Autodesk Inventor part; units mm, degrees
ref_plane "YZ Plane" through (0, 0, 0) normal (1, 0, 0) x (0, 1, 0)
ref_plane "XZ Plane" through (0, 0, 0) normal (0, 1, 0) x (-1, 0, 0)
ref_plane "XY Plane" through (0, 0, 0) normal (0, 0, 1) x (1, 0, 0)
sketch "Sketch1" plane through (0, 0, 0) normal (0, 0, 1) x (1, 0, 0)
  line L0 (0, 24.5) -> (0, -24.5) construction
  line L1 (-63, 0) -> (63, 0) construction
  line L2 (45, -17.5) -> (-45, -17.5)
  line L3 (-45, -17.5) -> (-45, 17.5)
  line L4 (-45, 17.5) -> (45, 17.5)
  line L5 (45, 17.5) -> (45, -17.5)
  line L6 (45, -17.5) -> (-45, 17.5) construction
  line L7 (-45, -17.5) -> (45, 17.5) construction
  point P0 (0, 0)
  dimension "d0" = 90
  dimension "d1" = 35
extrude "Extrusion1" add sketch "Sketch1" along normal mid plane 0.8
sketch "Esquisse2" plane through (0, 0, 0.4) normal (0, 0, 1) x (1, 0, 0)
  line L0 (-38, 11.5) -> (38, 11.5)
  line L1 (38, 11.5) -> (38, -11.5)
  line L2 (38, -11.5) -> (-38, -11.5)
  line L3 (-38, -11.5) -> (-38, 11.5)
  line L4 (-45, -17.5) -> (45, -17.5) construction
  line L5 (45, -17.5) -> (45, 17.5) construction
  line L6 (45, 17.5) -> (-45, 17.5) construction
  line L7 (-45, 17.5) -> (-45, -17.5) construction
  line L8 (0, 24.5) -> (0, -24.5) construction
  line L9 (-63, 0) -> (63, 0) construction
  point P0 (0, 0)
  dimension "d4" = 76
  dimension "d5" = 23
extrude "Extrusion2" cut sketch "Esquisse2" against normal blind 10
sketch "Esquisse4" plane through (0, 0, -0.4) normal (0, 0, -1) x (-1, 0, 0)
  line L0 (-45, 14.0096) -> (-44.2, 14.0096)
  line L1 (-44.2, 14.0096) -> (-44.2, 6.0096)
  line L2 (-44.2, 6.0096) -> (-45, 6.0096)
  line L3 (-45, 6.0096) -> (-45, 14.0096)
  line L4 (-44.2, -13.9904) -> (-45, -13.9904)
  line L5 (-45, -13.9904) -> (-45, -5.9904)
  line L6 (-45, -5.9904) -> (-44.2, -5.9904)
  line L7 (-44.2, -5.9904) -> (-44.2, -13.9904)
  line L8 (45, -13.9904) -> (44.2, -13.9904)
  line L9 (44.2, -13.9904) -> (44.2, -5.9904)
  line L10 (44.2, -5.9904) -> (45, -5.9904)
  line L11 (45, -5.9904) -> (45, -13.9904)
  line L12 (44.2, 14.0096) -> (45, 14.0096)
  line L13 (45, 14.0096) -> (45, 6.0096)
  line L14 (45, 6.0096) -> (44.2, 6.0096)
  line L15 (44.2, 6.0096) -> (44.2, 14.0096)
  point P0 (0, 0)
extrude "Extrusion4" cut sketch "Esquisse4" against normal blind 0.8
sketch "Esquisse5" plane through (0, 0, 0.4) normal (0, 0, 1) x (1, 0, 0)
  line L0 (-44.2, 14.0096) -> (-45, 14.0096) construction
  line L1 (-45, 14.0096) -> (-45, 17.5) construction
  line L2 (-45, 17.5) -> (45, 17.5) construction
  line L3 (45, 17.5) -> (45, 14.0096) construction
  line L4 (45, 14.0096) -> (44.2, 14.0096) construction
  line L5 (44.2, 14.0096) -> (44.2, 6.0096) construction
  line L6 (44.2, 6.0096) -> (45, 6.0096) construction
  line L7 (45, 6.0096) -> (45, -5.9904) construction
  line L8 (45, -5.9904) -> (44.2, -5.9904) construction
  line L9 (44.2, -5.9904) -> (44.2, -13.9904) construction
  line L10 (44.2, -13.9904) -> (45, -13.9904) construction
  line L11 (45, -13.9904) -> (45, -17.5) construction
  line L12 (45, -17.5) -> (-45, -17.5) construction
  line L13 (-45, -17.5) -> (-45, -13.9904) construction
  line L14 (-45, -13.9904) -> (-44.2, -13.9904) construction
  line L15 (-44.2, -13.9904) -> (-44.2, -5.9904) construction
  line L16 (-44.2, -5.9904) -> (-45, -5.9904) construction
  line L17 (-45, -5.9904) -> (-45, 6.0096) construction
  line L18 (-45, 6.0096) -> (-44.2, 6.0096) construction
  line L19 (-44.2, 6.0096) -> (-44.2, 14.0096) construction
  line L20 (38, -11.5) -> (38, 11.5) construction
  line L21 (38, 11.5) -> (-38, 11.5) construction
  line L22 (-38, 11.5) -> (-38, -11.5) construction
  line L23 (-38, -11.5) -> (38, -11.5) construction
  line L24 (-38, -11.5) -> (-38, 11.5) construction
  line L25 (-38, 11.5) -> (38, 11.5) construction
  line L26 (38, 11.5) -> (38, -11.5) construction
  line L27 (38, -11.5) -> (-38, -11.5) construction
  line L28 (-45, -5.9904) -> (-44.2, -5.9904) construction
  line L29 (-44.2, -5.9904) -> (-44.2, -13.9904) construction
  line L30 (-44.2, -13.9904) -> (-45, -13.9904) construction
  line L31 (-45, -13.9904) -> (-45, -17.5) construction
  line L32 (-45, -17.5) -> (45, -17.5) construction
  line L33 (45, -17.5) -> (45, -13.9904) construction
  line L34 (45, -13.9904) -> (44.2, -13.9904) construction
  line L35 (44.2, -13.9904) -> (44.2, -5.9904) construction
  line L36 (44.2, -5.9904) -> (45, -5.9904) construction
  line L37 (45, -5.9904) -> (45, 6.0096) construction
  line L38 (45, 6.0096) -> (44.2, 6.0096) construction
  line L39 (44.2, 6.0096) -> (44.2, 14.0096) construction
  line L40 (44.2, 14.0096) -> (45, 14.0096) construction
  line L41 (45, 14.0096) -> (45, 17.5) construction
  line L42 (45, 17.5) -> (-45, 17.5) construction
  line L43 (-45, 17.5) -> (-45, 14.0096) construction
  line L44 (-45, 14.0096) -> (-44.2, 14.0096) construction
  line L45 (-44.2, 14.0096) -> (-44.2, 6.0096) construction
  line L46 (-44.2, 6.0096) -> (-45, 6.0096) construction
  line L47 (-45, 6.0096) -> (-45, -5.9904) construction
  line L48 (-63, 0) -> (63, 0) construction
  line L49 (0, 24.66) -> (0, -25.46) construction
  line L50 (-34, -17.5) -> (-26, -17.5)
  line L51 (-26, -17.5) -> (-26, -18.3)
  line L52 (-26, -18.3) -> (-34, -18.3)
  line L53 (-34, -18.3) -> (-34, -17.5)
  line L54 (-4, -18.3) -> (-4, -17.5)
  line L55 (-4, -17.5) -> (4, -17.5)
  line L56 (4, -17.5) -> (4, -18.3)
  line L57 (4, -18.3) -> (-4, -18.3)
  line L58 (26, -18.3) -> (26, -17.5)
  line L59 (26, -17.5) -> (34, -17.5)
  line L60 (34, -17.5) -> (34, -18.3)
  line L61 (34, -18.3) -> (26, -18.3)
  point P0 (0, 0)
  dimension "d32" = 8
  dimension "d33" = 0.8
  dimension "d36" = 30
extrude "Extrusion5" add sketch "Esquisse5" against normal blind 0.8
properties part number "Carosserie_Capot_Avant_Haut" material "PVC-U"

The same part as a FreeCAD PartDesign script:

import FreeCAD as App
import Part
import Sketcher
Q = App.Units.Quantity


def add_polygon(sketch, points):
    """Adds a closed chain of lines whose ends are joined by coincident constraints."""
    first, n = sketch.GeometryCount, len(points)
    for a, b in zip(points, points[1:] + points[:1]):
        sketch.addGeometry(Part.LineSegment(App.Vector(*a, 0), App.Vector(*b, 0)), False)
    for i in range(n):
        sketch.addConstraint(Sketcher.Constraint("Coincident", first + i, 2, first + (i + 1) % n, 1))

doc = App.newDocument("Part")
params = doc.addObject("Spreadsheet::Sheet", "Params")
for row, (alias, value) in enumerate([
    ("sketch1_width", "90 mm"),
    ("sketch1_height", "35 mm"),
    ("pad1_length", "0.8 mm"),
    ("sketch2_width", "76 mm"),
    ("sketch2_height", "23 mm"),
    ("pocket1_length", "10 mm"),
    ("sketch3_height", "8 mm"),
    ("sketch3_width", "0.8 mm"),
    ("pocket2_length", "0.8 mm"),
    ("sketch4_width", "8 mm"),
    ("sketch4_height", "0.8 mm"),
    ("pad2_length", "0.8 mm"),
], start=1):
    params.set(f"A{row}", alias)
    params.set(f"B{row}", "=" + value)
    params.setAlias(f"B{row}", alias)

body = doc.addObject("PartDesign::Body", "Body")

# Sketch on XY plane
sketch1 = body.newObject("Sketcher::SketchObject", "Sketch")
sketch1.AttachmentSupport = (doc.getObject("XY_Plane"), [""])
sketch1.MapMode = "FlatFace"
add_polygon(sketch1, [(-45, -18), (45, -18), (45, 18), (-45, 18)])  # lines 0-3
sketch1.addConstraint([
    Sketcher.Constraint("Horizontal", 0),
    Sketcher.Constraint("Vertical", 1),
    Sketcher.Constraint("Horizontal", 2),
    Sketcher.Constraint("Vertical", 3),
    Sketcher.Constraint("Symmetric", 0, 2, 2, 2, -1, 1),
    Sketcher.Constraint("DistanceX", 0, 1, 0, 2, Q("90 mm")),
    Sketcher.Constraint("DistanceY", 1, 1, 1, 2, Q("35 mm")),
])
sketch1.setExpression("Constraints[9]", "Params.sketch1_width")
sketch1.setExpression("Constraints[10]", "Params.sketch1_height")
pad1 = body.newObject("PartDesign::Pad", "Pad")
pad1.Profile = sketch1
pad1.setExpression("Length", "Params.pad1_length")
pad1.Midplane = True

# Sketch on XY plane
sketch2 = body.newObject("Sketcher::SketchObject", "Sketch001")
sketch2.AttachmentSupport = (doc.getObject("XY_Plane"), [""])
sketch2.MapMode = "FlatFace"
sketch2.AttachmentOffset = App.Placement(App.Vector(0, 0, 0.4), App.Rotation())
add_polygon(sketch2, [(38, 12), (-38, 12), (-38, -12), (38, -12)])  # lines 0-3
sketch2.addConstraint([
    Sketcher.Constraint("Horizontal", 0),
    Sketcher.Constraint("Vertical", 1),
    Sketcher.Constraint("Horizontal", 2),
    Sketcher.Constraint("Vertical", 3),
    Sketcher.Constraint("Symmetric", 0, 2, 2, 2, -1, 1),
    Sketcher.Constraint("DistanceX", 0, 2, 0, 1, Q("76 mm")),
    Sketcher.Constraint("DistanceY", 1, 2, 1, 1, Q("23 mm")),
])
sketch2.setExpression("Constraints[9]", "Params.sketch2_width")
sketch2.setExpression("Constraints[10]", "Params.sketch2_height")
pocket1 = body.newObject("PartDesign::Pocket", "Pocket")
pocket1.Profile = sketch2
pocket1.setExpression("Length", "Params.pocket1_length")

# Sketch on XY plane
sketch3 = body.newObject("Sketcher::SketchObject", "Sketch002")
sketch3.AttachmentSupport = (doc.getObject("XY_Plane"), [""])
sketch3.MapMode = "FlatFace"
sketch3.AttachmentOffset = App.Placement(App.Vector(0, 0, -0.4), App.Rotation())
add_polygon(sketch3, [(44.2, 14), (45, 14), (45, 6), (44.2, 6)])  # lines 0-3
add_polygon(sketch3, [(45, -14), (44.2, -14), (44.2, -6), (45, -6)])  # lines 4-7
add_polygon(sketch3, [(-44.2, -14), (-45, -14), (-45, -6), (-44.2, -6)])  # lines 8-11
add_polygon(sketch3, [(-45, 14), (-44.2, 14), (-44.2, 6), (-45, 6)])  # lines 12-15
sketch3.addConstraint([
    Sketcher.Constraint("Horizontal", 0),
    Sketcher.Constraint("Vertical", 1),
    Sketcher.Constraint("Horizontal", 2),
    Sketcher.Constraint("Vertical", 3),
    Sketcher.Constraint("Horizontal", 4),
    Sketcher.Constraint("Vertical", 5),
    Sketcher.Constraint("Horizontal", 6),
    Sketcher.Constraint("Vertical", 7),
    Sketcher.Constraint("Horizontal", 8),
    Sketcher.Constraint("Vertical", 9),
    Sketcher.Constraint("Horizontal", 10),
    Sketcher.Constraint("Vertical", 11),
    Sketcher.Constraint("Horizontal", 12),
    Sketcher.Constraint("Vertical", 13),
    Sketcher.Constraint("Horizontal", 14),
    Sketcher.Constraint("Vertical", 15),
    Sketcher.Constraint("Symmetric", 7, 2, 8, 2, -2),
    Sketcher.Constraint("Symmetric", 5, 2, 10, 2, -2),
    Sketcher.Constraint("Symmetric", 3, 2, 12, 2, -2),
    Sketcher.Constraint("Symmetric", 1, 2, 14, 2, -2),
    Sketcher.Constraint("Vertical", 3, 2, 4, 2),
    Sketcher.Constraint("Vertical", 1, 2, 6, 2),
    Sketcher.Constraint("Equal", 3, 5),
    Sketcher.Constraint("DistanceY", 1, 2, 1, 1, Q("8 mm")),
    Sketcher.Constraint("DistanceX", 0, 1, 0, 2, Q("0.8 mm")),
    Sketcher.Constraint("DistanceX", -1, 1, 0, 2, Q("45 mm")),
    Sketcher.Constraint("DistanceY", 4, 2, 2, 2, Q("20 mm")),
    Sketcher.Constraint("DistanceY", -1, 1, 0, 2, Q("14.0096 mm")),
])
sketch3.setExpression("Constraints[39]", "Params.sketch3_height")
sketch3.setExpression("Constraints[40]", "Params.sketch3_width")
pocket2 = body.newObject("PartDesign::Pocket", "Pocket001")
pocket2.Profile = sketch3
pocket2.setExpression("Length", "Params.pocket2_length")
pocket2.Reversed = True

# Sketch on XY plane
sketch4 = body.newObject("Sketcher::SketchObject", "Sketch003")
sketch4.AttachmentSupport = (doc.getObject("XY_Plane"), [""])
sketch4.MapMode = "FlatFace"
sketch4.AttachmentOffset = App.Placement(App.Vector(0, 0, 0.4), App.Rotation())
add_polygon(sketch4, [(-26, -17.5), (-34, -17.5), (-34, -18.3), (-26, -18.3)])  # lines 0-3
add_polygon(sketch4, [(-4, -17.5), (-4, -18.3), (4, -18.3), (4, -17.5)])  # lines 4-7
add_polygon(sketch4, [(26, -17.5), (26, -18.3), (34, -18.3), (34, -17.5)])  # lines 8-11
sketch4.addConstraint([
    Sketcher.Constraint("Horizontal", 0),
    Sketcher.Constraint("Vertical", 1),
    Sketcher.Constraint("Horizontal", 2),
    Sketcher.Constraint("Vertical", 3),
    Sketcher.Constraint("Vertical", 4),
    Sketcher.Constraint("Horizontal", 5),
    Sketcher.Constraint("Vertical", 6),
    Sketcher.Constraint("Horizontal", 7),
    Sketcher.Constraint("Vertical", 8),
    Sketcher.Constraint("Horizontal", 9),
    Sketcher.Constraint("Vertical", 10),
    Sketcher.Constraint("Horizontal", 11),
    Sketcher.Constraint("Symmetric", 2, 2, 8, 2, -2),
    Sketcher.Constraint("Symmetric", 0, 2, 10, 2, -2),
    Sketcher.Constraint("Horizontal", 2, 2, 4, 2),
    Sketcher.Constraint("Horizontal", 3, 2, 6, 2),
    Sketcher.Constraint("Equal", 2, 5),
    Sketcher.Constraint("DistanceX", 0, 2, 0, 1, Q("8 mm")),
    Sketcher.Constraint("DistanceY", 1, 2, 1, 1, Q("0.8 mm")),
    Sketcher.Constraint("DistanceX", 1, 2, 4, 2, Q("30 mm")),
    Sketcher.Constraint("DistanceX", 4, 2, 8, 2, Q("30 mm")),
    Sketcher.Constraint("DistanceY", 0, 2, -1, 1, Q("17.5 mm")),
])
sketch4.setExpression("Constraints[29]", "Params.sketch4_width")
sketch4.setExpression("Constraints[30]", "Params.sketch4_height")
pad2 = body.newObject("PartDesign::Pad", "Pad001")
pad2.Profile = sketch4
pad2.setExpression("Length", "Params.pad2_length")
pad2.Reversed = True

doc.recompute()
